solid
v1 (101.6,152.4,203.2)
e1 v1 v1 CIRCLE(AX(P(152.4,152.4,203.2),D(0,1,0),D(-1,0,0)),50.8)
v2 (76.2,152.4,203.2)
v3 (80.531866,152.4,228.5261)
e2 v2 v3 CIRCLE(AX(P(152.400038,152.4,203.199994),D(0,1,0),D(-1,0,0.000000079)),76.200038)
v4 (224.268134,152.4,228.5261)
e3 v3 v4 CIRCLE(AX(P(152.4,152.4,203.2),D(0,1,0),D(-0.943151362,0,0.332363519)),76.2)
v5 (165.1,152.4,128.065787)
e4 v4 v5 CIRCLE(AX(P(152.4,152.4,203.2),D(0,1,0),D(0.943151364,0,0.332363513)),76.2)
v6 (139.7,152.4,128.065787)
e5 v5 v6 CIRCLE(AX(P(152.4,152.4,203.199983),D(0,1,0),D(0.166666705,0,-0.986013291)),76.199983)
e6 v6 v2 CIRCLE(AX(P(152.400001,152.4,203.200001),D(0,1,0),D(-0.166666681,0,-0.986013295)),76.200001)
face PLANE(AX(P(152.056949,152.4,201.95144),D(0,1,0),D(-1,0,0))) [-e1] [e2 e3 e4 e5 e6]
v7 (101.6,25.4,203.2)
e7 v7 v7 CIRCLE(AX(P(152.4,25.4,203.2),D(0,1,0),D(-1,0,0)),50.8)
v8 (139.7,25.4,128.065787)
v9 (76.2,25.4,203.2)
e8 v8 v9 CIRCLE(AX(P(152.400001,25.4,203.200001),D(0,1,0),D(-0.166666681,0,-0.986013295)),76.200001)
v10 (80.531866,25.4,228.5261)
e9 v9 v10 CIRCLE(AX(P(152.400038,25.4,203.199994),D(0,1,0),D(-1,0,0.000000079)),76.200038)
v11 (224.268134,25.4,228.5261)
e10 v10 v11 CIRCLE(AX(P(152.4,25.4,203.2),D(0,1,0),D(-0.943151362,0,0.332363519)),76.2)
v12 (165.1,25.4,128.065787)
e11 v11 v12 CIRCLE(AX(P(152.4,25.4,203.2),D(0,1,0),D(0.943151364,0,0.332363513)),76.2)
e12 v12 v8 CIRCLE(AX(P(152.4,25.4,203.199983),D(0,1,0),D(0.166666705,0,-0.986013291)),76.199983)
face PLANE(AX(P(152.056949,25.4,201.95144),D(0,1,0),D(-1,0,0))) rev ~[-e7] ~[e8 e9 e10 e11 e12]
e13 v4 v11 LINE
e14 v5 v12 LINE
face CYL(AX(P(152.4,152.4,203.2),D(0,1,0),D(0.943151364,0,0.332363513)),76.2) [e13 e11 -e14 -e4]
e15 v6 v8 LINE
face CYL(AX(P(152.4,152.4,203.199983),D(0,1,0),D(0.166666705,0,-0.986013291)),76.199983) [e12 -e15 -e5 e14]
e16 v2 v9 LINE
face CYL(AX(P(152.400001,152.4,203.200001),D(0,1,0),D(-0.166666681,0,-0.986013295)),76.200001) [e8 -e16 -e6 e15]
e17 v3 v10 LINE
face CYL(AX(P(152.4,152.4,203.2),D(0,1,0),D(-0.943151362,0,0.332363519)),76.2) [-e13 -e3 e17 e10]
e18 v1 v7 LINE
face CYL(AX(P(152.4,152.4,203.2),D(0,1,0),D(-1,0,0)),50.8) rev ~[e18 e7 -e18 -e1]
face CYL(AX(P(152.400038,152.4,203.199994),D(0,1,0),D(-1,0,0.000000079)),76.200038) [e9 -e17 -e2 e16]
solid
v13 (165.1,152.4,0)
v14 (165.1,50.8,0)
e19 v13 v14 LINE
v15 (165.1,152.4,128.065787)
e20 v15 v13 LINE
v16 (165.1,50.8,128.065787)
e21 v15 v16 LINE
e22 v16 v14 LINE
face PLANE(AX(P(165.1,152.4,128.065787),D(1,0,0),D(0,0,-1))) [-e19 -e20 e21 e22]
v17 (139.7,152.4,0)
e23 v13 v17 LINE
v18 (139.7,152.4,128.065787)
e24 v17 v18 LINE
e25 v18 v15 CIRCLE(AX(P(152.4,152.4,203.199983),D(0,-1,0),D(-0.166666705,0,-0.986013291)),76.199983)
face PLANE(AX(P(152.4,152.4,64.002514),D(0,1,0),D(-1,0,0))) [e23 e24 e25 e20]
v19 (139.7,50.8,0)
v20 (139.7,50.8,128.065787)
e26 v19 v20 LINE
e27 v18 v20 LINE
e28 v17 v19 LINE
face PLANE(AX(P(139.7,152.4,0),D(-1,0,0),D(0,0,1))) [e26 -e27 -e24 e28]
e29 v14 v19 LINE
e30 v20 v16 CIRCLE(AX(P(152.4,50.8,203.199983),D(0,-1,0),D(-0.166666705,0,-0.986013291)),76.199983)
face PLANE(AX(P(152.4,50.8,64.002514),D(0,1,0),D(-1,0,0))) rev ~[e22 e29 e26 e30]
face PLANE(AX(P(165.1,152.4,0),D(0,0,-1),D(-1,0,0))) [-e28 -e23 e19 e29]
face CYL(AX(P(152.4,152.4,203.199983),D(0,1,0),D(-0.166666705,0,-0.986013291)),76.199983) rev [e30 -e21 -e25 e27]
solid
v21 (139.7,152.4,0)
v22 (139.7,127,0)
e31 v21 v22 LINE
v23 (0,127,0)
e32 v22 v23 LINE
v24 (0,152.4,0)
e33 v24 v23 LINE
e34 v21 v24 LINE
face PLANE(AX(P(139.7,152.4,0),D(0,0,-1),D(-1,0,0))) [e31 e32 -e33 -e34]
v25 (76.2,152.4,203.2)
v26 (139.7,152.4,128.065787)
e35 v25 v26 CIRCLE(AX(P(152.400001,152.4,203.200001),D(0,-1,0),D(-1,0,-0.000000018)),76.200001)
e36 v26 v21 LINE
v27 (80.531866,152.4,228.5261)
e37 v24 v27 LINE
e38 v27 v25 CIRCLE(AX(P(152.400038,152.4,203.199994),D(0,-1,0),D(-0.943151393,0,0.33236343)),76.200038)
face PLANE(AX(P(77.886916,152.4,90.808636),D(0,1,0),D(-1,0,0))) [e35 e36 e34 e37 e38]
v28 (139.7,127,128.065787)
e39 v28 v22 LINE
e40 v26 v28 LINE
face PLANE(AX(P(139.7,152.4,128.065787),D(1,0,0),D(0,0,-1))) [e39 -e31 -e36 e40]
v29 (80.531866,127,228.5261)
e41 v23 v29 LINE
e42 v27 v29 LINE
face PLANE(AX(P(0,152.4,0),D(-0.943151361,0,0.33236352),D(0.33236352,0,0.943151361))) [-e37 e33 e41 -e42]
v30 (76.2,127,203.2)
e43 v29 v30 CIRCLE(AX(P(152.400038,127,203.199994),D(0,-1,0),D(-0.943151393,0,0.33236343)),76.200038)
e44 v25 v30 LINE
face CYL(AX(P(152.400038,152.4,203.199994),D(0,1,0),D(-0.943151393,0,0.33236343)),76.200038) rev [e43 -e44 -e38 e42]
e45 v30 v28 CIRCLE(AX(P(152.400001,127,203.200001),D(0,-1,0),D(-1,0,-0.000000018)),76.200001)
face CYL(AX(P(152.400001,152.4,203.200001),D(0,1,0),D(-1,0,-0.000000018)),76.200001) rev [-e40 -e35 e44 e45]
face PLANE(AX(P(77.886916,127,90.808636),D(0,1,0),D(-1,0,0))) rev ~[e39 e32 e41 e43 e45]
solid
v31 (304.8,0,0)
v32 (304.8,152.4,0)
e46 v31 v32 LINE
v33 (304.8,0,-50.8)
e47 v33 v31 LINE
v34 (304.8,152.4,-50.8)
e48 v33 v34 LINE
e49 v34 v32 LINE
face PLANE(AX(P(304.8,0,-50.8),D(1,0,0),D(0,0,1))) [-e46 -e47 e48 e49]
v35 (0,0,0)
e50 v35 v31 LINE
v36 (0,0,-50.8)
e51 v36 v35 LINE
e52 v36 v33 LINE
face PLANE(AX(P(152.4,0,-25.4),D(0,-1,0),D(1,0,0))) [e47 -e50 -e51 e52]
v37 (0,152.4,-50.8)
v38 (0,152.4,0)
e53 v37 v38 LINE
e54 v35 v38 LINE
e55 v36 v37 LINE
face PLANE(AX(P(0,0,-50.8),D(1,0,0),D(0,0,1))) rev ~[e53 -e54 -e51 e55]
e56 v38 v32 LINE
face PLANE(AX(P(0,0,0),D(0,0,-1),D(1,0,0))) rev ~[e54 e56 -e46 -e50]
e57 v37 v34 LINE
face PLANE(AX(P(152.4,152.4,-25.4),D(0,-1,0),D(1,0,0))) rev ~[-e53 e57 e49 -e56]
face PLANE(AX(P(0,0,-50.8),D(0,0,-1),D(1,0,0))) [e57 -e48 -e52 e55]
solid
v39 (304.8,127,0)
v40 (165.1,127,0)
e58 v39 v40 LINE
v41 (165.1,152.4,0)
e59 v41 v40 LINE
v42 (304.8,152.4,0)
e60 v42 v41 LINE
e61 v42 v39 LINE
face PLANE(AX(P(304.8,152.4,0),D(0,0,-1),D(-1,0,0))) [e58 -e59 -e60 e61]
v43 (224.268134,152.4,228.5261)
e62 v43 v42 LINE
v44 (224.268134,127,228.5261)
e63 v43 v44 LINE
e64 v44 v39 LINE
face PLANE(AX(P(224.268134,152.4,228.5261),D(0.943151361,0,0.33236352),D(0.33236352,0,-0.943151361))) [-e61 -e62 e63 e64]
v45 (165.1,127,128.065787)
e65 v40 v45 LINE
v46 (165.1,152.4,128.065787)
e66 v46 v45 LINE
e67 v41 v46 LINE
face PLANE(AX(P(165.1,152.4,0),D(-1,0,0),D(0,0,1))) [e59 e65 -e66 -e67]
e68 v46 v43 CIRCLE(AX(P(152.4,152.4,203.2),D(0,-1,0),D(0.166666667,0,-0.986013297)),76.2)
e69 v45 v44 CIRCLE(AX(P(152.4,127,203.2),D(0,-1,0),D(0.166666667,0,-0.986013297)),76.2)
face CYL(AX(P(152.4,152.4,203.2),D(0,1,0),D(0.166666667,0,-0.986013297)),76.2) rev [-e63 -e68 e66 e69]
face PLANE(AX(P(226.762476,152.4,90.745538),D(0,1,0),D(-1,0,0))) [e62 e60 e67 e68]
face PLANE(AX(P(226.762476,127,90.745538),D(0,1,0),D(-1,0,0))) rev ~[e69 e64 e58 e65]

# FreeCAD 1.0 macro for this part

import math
import FreeCAD as App
import Part
import Sketcher
Q = App.Units.Quantity


def add_polygon(sketch, points):
    """Adds a closed chain of lines whose ends are joined by coincident constraints."""
    first, n = sketch.GeometryCount, len(points)
    for a, b in zip(points, points[1:] + points[:1]):
        sketch.addGeometry(Part.LineSegment(App.Vector(*a, 0), App.Vector(*b, 0)), False)
    for i in range(n):
        sketch.addConstraint(Sketcher.Constraint("Coincident", first + i, 2, first + (i + 1) % n, 1))

doc = App.newDocument("Part")
body = doc.addObject("PartDesign::Body", "Body")

# Sketch on XZ plane
sketch1 = doc.addObject("Sketcher::SketchObject", "Sketch")
body.addObject(sketch1)
sketch1.AttachmentSupport = (doc.XZ_Plane, [""])
sketch1.MapMode = "FlatFace"
add_polygon(sketch1, [(0, 0), (0, -51), (305, -51), (305, 0)])  # lines 0-3
sketch1.addConstraint(Sketcher.Constraint("Vertical", 0))
sketch1.addConstraint(Sketcher.Constraint("Horizontal", 1))
sketch1.addConstraint(Sketcher.Constraint("Vertical", 2))
sketch1.addConstraint(Sketcher.Constraint("Horizontal", 3))
sketch1.addConstraint(Sketcher.Constraint("Coincident", 3, 2, -1, 1))
sketch1.addConstraint(Sketcher.Constraint("DistanceX", 1, 1, 1, 2, Q("12 in")))
sketch1.addConstraint(Sketcher.Constraint("DistanceY", 0, 2, 0, 1, Q("2 in")))
pad1 = doc.addObject("PartDesign::Pad", "Pad")
body.addObject(pad1)
pad1.Profile = sketch1
pad1.Length = Q("6 in")
pad1.Reversed = True
body2 = doc.addObject("PartDesign::Body", "Body001")

# Sketch on XZ plane
sketch2 = doc.addObject("Sketcher::SketchObject", "Sketch001")
body2.addObject(sketch2)
sketch2.AttachmentSupport = (doc.getObject("XZ_Plane001"), [""])
sketch2.MapMode = "FlatFace"
sketch2.AttachmentOffset = App.Placement(App.Vector(0, 0, -6 * 25.4), App.Rotation())
sketch2.addGeometry(Part.ArcOfCircle(Part.Circle(App.Vector(152.400001, 203.200001, 0), App.Vector(0, 0, 1), 76.200001), math.radians(-179.999999), math.radians(-99.594069)), False)
sketch2.addGeometry(Part.ArcOfCircle(Part.Circle(App.Vector(152.400038, 203.199994, 0), App.Vector(0, 0, 1), 76.200038), math.radians(160.587711), math.radians(179.999995)), False)
sketch2.addGeometry(Part.ArcOfCircle(Part.Circle(App.Vector(152.4, 203.2, 0), App.Vector(0, 0, 1), 76.2), math.radians(19.412294), math.radians(160.587706)), False)
sketch2.addGeometry(Part.ArcOfCircle(Part.Circle(App.Vector(152.4, 203.2, 0), App.Vector(0, 0, 1), 76.2), math.radians(-80.405932), math.radians(19.412294)), False)
sketch2.addGeometry(Part.ArcOfCircle(Part.Circle(App.Vector(152.4, 203.199983, 0), App.Vector(0, 0, 1), 76.199983), math.radians(-99.59407), math.radians(-80.40593)), False)
sketch2.addGeometry(Part.Circle(App.Vector(152.4, 203.2, 0), App.Vector(0, 0, 1), 50.8), False)
sketch2.addConstraint(Sketcher.Constraint("Coincident", 0, 1, 1, 2))
sketch2.addConstraint(Sketcher.Constraint("Coincident", 1, 1, 2, 2))
sketch2.addConstraint(Sketcher.Constraint("Coincident", 2, 1, 3, 2))
sketch2.addConstraint(Sketcher.Constraint("Coincident", 3, 1, 4, 2))
sketch2.addConstraint(Sketcher.Constraint("Coincident", 4, 1, 0, 2))
sketch2.addConstraint(Sketcher.Constraint("Coincident", 2, 3, 0, 3))
sketch2.addConstraint(Sketcher.Constraint("Coincident", 3, 3, 0, 3))
sketch2.addConstraint(Sketcher.Constraint("Coincident", 5, 3, 0, 3))
sketch2.addConstraint(Sketcher.Constraint("Diameter", 5, Q("4 in")))
sketch2.addConstraint(Sketcher.Constraint("Radius", 0, Q("3.0000001 in")))
sketch2.addConstraint(Sketcher.Constraint("Radius", 2, Q("3 in")))
sketch2.addConstraint(Sketcher.Constraint("DistanceX", -1, 1, 0, 3, Q("6.0000001 in")))
sketch2.addConstraint(Sketcher.Constraint("DistanceY", -1, 1, 0, 3, Q("8.0000001 in")))
sketch2.addConstraint(Sketcher.Constraint("DistanceY", -1, 1, 0, 1, Q("8 in")))
sketch2.addConstraint(Sketcher.Constraint("DistanceX", 4, 1, 3, 1, Q("1 in")))
sketch2.addConstraint(Sketcher.Constraint("DistanceX", -1, 1, 3, 1, Q("6.5 in")))
sketch2.addConstraint(Sketcher.Constraint("Radius", 1, 76.200038))
sketch2.addConstraint(Sketcher.Constraint("Radius", 4, 76.199983))
sketch2.addConstraint(Sketcher.Constraint("DistanceY", -1, 1, 1, 1, 228.5261))
sketch2.addConstraint(Sketcher.Constraint("DistanceY", -1, 1, 2, 1, 228.5261))
pad2 = doc.addObject("PartDesign::Pad", "Pad001")
body2.addObject(pad2)
pad2.Profile = sketch2
pad2.Length = Q("5 in")
body3 = doc.addObject("PartDesign::Body", "Body002")

# Sketch on XZ plane
sketch3 = doc.addObject("Sketcher::SketchObject", "Sketch002")
body3.addObject(sketch3)
sketch3.AttachmentSupport = (doc.getObject("XZ_Plane002"), [""])
sketch3.MapMode = "FlatFace"
sketch3.AttachmentOffset = App.Placement(App.Vector(0, 0, -6 * 25.4), App.Rotation())
sketch3.addGeometry(Part.LineSegment(App.Vector(140, 0, 0), App.Vector(140, 128, 0)), False)
sketch3.addGeometry(Part.ArcOfCircle(Part.Circle(App.Vector(152, 203, 0), App.Vector(0, 0, 1), 76), math.radians(-99.59), math.radians(-80.41)), False)
sketch3.addGeometry(Part.LineSegment(App.Vector(165, 128, 0), App.Vector(165, 0, 0)), False)
sketch3.addGeometry(Part.LineSegment(App.Vector(165, 0, 0), App.Vector(140, 0, 0)), False)
sketch3.addConstraint(Sketcher.Constraint("Coincident", 0, 2, 1, 1))
sketch3.addConstraint(Sketcher.Constraint("Coincident", 1, 2, 2, 1))
sketch3.addConstraint(Sketcher.Constraint("Coincident", 2, 2, 3, 1))
sketch3.addConstraint(Sketcher.Constraint("Coincident", 3, 2, 0, 1))
sketch3.addConstraint(Sketcher.Constraint("Vertical", 0))
sketch3.addConstraint(Sketcher.Constraint("Vertical", 2))
sketch3.addConstraint(Sketcher.Constraint("Horizontal", 3))
sketch3.addConstraint(Sketcher.Constraint("PointOnObject", 2, 2, -1))
sketch3.addConstraint(Sketcher.Constraint("Horizontal", 0, 2, 1, 2))
sketch3.addConstraint(Sketcher.Constraint("DistanceX", 3, 2, 3, 1, Q("1 in")))
sketch3.addConstraint(Sketcher.Constraint("DistanceX", -1, 1, 1, 3, Q("6 in")))
sketch3.addConstraint(Sketcher.Constraint("Radius", 1, 76.199983))
sketch3.addConstraint(Sketcher.Constraint("DistanceY", 0, 1, 0, 2, 128.065787))
pad3 = doc.addObject("PartDesign::Pad", "Pad002")
body3.addObject(pad3)
pad3.Profile = sketch3
pad3.Length = Q("4 in")
body4 = doc.addObject("PartDesign::Body", "Body003")
body4.AllowCompound = True

# Sketch on XZ plane
sketch4 = doc.addObject("Sketcher::SketchObject", "Sketch003")
body4.addObject(sketch4)
sketch4.AttachmentSupport = (doc.getObject("XZ_Plane003"), [""])
sketch4.MapMode = "FlatFace"
sketch4.AttachmentOffset = App.Placement(App.Vector(0, 0, -6 * 25.4), App.Rotation())
sketch4.addGeometry(Part.ArcOfCircle(Part.Circle(App.Vector(152.4, 203.2, 0), App.Vector(0, 0, 1), 76.2), math.radians(-80.405932), math.radians(19.412294)), False)
sketch4.addGeometry(Part.LineSegment(App.Vector(224.268134, 228.5261, 0), App.Vector(304.8, 0, 0)), False)
sketch4.addGeometry(Part.LineSegment(App.Vector(304.8, 0, 0), App.Vector(165.1, 0, 0)), False)
sketch4.addGeometry(Part.LineSegment(App.Vector(165.1, 0, 0), App.Vector(165.1, 128.065787, 0)), False)
sketch4.addGeometry(Part.ArcOfCircle(Part.Circle(App.Vector(152.400038, 203.199994, 0), App.Vector(0, 0, 1), 76.200038), math.radians(160.587711), math.radians(179.999995)), False)
sketch4.addGeometry(Part.ArcOfCircle(Part.Circle(App.Vector(152.400001, 203.200001, 0), App.Vector(0, 0, 1), 76.200001), math.radians(-179.999999), math.radians(-99.594069)), False)
sketch4.addGeometry(Part.LineSegment(App.Vector(139.7, 128.065787, 0), App.Vector(139.7, 0, 0)), False)
sketch4.addGeometry(Part.LineSegment(App.Vector(139.7, 0, 0), App.Vector(0, 0, 0)), False)
sketch4.addGeometry(Part.LineSegment(App.Vector(0, 0, 0), App.Vector(80.531866, 228.5261, 0)), False)
sketch4.addConstraint(Sketcher.Constraint("Tangent", 0, 2, 1, 1))
sketch4.addConstraint(Sketcher.Constraint("Coincident", 1, 2, 2, 1))
sketch4.addConstraint(Sketcher.Constraint("Coincident", 2, 2, 3, 1))
sketch4.addConstraint(Sketcher.Constraint("Coincident", 3, 2, 0, 1))
sketch4.addConstraint(Sketcher.Constraint("Tangent", 4, 2, 5, 1))
sketch4.addConstraint(Sketcher.Constraint("Coincident", 5, 2, 6, 1))
sketch4.addConstraint(Sketcher.Constraint("Coincident", 6, 2, 7, 1))
sketch4.addConstraint(Sketcher.Constraint("Coincident", 7, 2, 8, 1))
sketch4.addConstraint(Sketcher.Constraint("Tangent", 8, 2, 4, 1))
sketch4.addConstraint(Sketcher.Constraint("Horizontal", 2))
sketch4.addConstraint(Sketcher.Constraint("Vertical", 3))
sketch4.addConstraint(Sketcher.Constraint("Vertical", 6))
sketch4.addConstraint(Sketcher.Constraint("Horizontal", 7))
sketch4.addConstraint(Sketcher.Constraint("Coincident", 7, 2, -1, 1))
sketch4.addConstraint(Sketcher.Constraint("Coincident", 5, 3, 0, 3))
sketch4.addConstraint(Sketcher.Constraint("Equal", 0, 5))
sketch4.addConstraint(Sketcher.Constraint("PointOnObject", 1, 2, -1))
sketch4.addConstraint(Sketcher.Constraint("Horizontal", 5, 3, 4, 2))
sketch4.addConstraint(Sketcher.Constraint("Horizontal", 3, 2, 5, 2))
sketch4.addConstraint(Sketcher.Constraint("Horizontal", 0, 2, 8, 2))
sketch4.addConstraint(Sketcher.Constraint("Equal", 2, 7))
sketch4.addConstraint(Sketcher.Constraint("Radius", 0, Q("3 in")))
sketch4.addConstraint(Sketcher.Constraint("DistanceX", 2, 2, 2, 1, Q("5.5 in")))
sketch4.addConstraint(Sketcher.Constraint("DistanceX", -1, 1, 0, 3, Q("6 in")))
sketch4.addConstraint(Sketcher.Constraint("DistanceY", -1, 1, 0, 3, Q("8 in")))
pad4 = doc.addObject("PartDesign::Pad", "Pad003")
body4.addObject(pad4)
pad4.Profile = sketch4
pad4.Length = Q("1 in")

doc.recompute()
